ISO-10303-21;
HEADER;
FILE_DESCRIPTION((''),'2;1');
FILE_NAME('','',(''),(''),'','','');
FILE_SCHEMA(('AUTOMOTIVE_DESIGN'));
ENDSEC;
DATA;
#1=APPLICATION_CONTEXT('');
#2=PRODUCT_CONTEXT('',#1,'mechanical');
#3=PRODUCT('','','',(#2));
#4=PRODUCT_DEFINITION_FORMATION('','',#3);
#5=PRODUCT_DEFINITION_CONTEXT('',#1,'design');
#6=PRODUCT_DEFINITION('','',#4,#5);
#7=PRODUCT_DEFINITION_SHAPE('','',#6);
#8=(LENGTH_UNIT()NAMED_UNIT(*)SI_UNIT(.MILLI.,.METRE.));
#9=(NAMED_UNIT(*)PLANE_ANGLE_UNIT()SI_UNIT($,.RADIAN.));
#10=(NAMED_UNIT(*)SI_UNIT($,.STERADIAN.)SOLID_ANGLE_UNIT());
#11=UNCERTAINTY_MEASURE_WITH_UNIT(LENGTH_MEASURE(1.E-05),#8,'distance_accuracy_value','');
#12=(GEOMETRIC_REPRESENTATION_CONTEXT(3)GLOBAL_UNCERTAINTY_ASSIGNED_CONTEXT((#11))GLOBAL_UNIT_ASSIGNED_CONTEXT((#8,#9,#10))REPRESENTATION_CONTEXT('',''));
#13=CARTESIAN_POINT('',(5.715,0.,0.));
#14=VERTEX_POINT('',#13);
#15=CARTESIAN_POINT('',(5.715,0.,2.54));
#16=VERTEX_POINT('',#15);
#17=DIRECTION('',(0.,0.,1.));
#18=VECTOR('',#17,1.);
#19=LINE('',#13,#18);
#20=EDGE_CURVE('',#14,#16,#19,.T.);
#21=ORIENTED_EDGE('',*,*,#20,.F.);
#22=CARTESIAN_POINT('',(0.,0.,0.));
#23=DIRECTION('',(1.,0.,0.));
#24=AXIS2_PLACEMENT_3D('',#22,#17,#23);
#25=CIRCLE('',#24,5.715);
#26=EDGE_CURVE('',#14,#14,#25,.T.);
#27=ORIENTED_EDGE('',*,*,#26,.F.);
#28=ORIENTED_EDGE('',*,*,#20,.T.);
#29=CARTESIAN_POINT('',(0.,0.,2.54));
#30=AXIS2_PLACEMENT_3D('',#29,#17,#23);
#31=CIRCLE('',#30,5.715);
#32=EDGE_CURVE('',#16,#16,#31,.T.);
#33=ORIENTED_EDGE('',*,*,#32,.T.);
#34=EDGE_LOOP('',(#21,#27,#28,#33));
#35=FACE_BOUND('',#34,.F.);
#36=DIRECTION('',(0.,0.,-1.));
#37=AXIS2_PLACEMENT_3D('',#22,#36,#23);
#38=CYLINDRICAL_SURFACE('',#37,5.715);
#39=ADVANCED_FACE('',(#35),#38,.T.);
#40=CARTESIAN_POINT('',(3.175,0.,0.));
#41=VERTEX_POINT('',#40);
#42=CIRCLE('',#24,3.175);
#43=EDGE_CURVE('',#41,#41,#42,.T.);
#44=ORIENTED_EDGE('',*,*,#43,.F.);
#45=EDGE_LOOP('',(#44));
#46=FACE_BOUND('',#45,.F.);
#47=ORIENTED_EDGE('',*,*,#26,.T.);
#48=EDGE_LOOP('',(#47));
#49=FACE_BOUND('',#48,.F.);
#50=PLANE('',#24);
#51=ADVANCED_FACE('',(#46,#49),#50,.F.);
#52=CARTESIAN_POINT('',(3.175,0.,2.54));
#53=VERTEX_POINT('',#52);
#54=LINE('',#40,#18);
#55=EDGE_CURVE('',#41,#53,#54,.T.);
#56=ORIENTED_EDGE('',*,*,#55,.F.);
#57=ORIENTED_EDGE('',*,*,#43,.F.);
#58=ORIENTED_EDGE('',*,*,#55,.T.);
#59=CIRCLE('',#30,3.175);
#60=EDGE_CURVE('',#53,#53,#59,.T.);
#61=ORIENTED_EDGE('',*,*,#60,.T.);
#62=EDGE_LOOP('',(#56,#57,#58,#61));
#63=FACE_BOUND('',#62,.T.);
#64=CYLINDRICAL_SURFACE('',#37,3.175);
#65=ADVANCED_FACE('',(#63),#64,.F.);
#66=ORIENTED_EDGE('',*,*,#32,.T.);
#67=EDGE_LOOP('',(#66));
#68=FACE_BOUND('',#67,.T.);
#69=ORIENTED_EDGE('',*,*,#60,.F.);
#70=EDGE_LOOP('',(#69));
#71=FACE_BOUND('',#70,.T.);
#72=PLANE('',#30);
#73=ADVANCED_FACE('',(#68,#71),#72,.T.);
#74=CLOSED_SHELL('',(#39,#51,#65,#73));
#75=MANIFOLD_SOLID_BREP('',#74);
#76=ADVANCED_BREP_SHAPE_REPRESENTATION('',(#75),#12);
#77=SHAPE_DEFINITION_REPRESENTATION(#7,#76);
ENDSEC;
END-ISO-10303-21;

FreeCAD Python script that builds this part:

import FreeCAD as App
import Part
import Sketcher

V = App.Vector
Q = App.Units.Quantity

doc = App.newDocument("Part")
body = doc.addObject("PartDesign::Body", "Body")

# Sketch on XY plane
sketch1 = body.newObject("Sketcher::SketchObject", "Sketch")
sketch1.AttachmentSupport = (doc.getObject("XY_Plane"), [""])
sketch1.MapMode = "FlatFace"
sketch1.addGeometry(Part.Circle(V(0, 0, 0), V(0, 0, 1), 5.7), False)
sketch1.addGeometry(Part.Circle(V(0, 0, 0), V(0, 0, 1), 3.2), False)
sketch1.addConstraint(Sketcher.Constraint("Coincident", 0, 3, -1, 1))
sketch1.addConstraint(Sketcher.Constraint("Coincident", 1, 3, -1, 1))
sketch1.addConstraint(Sketcher.Constraint("Diameter", 0, Q("0.45 in")))
sketch1.addConstraint(Sketcher.Constraint("Diameter", 1, Q("0.25 in")))
pad1 = body.newObject("PartDesign::Pad", "Pad")
pad1.Profile = sketch1
pad1.Length = Q("0.1 in")

doc.recompute()
